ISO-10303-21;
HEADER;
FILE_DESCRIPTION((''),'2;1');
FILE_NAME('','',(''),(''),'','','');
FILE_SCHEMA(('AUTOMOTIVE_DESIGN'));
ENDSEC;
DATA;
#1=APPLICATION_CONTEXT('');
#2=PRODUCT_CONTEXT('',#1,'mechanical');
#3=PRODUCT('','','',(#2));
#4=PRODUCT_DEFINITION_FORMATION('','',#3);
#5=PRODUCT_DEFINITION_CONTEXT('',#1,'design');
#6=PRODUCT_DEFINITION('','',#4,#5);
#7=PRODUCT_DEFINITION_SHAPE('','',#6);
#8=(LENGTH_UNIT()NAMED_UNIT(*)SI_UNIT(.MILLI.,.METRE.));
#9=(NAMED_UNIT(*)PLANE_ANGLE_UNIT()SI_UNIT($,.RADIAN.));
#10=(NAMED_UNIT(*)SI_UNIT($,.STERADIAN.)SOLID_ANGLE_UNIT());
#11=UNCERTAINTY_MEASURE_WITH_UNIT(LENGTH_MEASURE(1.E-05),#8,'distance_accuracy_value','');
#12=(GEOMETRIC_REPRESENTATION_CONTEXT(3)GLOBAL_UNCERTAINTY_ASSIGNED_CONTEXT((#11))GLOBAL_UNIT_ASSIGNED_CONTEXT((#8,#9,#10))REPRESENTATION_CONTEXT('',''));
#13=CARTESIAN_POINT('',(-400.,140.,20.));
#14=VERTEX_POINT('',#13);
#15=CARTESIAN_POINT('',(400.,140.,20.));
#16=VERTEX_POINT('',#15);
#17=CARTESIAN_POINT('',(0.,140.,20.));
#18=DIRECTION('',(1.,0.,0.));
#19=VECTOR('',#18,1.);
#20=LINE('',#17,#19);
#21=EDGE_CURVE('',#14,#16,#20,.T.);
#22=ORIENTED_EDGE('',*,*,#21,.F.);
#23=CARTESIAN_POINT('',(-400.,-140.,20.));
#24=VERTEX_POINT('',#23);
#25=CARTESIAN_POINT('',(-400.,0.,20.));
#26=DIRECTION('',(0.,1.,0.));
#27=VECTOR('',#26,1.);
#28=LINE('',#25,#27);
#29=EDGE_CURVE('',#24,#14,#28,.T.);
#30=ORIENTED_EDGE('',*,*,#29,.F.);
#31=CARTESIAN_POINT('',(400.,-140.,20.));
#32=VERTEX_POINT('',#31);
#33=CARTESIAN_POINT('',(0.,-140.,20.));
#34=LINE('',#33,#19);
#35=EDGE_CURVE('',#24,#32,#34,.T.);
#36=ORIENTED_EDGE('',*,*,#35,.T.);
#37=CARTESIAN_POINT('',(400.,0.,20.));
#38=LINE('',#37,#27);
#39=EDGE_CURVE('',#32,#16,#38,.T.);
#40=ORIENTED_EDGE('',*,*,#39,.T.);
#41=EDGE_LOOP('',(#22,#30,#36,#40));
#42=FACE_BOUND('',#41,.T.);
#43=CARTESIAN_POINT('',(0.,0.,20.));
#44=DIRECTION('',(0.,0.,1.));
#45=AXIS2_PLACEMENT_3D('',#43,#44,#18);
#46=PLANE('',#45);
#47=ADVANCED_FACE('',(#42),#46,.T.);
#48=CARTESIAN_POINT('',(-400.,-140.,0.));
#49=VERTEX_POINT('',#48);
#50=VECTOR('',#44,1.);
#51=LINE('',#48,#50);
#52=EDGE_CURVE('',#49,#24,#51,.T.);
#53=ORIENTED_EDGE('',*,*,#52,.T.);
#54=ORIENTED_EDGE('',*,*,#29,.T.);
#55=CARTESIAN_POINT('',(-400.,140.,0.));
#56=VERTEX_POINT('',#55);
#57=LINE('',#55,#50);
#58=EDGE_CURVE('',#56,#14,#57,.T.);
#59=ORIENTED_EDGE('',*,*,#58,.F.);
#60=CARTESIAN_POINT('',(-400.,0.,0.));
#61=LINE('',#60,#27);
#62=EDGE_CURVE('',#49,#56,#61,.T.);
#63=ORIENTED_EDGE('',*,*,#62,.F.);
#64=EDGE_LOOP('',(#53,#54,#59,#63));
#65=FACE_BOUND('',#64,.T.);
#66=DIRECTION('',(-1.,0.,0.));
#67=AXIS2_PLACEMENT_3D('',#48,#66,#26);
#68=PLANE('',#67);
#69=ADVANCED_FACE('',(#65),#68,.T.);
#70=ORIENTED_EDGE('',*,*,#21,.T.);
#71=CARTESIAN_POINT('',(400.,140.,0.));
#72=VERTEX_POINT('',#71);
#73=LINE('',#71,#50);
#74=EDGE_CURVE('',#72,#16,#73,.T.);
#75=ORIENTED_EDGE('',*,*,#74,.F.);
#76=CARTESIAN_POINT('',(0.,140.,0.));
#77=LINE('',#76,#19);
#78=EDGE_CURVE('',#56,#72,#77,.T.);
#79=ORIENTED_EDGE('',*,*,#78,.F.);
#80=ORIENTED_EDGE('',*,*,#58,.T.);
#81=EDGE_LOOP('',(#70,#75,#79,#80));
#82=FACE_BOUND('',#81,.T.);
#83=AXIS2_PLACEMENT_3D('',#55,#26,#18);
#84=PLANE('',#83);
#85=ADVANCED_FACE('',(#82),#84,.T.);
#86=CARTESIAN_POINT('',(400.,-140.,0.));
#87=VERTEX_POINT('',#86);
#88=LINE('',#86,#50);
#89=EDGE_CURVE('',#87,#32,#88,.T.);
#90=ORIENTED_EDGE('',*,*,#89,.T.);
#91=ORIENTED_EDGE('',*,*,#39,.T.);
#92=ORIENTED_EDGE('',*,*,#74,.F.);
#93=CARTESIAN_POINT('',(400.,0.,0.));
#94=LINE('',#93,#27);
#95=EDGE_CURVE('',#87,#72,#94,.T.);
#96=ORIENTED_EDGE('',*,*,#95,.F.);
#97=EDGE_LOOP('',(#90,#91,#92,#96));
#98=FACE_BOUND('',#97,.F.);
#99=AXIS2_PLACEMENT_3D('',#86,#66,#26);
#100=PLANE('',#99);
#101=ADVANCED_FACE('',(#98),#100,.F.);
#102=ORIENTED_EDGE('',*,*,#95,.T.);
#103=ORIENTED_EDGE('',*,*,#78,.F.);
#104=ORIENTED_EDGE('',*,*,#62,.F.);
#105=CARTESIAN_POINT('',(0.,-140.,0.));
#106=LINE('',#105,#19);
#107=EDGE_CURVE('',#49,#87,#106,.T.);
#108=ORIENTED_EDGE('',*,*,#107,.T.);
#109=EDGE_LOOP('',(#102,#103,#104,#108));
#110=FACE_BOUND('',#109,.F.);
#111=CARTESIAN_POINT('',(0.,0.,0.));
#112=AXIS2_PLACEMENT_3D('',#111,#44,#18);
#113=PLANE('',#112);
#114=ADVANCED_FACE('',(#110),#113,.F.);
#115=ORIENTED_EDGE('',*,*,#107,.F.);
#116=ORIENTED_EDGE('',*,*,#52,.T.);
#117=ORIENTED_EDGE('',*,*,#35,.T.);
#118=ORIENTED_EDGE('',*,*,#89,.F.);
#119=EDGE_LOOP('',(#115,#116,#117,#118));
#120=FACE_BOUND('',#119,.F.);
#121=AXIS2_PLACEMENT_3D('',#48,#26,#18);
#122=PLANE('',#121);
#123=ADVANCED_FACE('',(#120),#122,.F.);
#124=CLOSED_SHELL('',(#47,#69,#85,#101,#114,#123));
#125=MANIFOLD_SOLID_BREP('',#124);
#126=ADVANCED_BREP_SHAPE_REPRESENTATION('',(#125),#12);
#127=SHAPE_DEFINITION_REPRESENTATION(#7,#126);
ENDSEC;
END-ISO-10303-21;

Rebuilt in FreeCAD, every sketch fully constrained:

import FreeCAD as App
import Part
import Sketcher
from FreeCAD import Vector


def add_polygon(sketch, points):
    """Adds a closed chain of lines whose ends are joined by coincident constraints."""
    first, n = sketch.GeometryCount, len(points)
    for a, b in zip(points, points[1:] + points[:1]):
        sketch.addGeometry(Part.LineSegment(App.Vector(*a, 0), App.Vector(*b, 0)), False)
    for i in range(n):
        sketch.addConstraint(Sketcher.Constraint("Coincident", first + i, 2, first + (i + 1) % n, 1))

doc = App.newDocument("Part")
body = doc.addObject("PartDesign::Body", "Body")

# Sketch on XY plane
sketch1 = body.newObject("Sketcher::SketchObject", "Sketch")
sketch1.AttachmentSupport = (doc.getObject("XY_Plane"), [""])
sketch1.MapMode = "FlatFace"
add_polygon(sketch1, [(-400, 140), (-400, -140), (400, -140), (400, 140)])  # lines 0-3
sketch1.addConstraint(Sketcher.Constraint("Vertical", 0))
sketch1.addConstraint(Sketcher.Constraint("Horizontal", 1))
sketch1.addConstraint(Sketcher.Constraint("Vertical", 2))
sketch1.addConstraint(Sketcher.Constraint("Horizontal", 3))
sketch1.addConstraint(Sketcher.Constraint("Symmetric", 0, 2, 2, 2, -1, 1))
sketch1.addConstraint(Sketcher.Constraint("DistanceX", 1, 1, 1, 2, 800.0))
sketch1.addConstraint(Sketcher.Constraint("DistanceY", 0, 2, 0, 1, 280.0))
pad1 = body.newObject("PartDesign::Pad", "Pad")
pad1.Profile = sketch1
pad1.Length = 20

doc.recompute()
